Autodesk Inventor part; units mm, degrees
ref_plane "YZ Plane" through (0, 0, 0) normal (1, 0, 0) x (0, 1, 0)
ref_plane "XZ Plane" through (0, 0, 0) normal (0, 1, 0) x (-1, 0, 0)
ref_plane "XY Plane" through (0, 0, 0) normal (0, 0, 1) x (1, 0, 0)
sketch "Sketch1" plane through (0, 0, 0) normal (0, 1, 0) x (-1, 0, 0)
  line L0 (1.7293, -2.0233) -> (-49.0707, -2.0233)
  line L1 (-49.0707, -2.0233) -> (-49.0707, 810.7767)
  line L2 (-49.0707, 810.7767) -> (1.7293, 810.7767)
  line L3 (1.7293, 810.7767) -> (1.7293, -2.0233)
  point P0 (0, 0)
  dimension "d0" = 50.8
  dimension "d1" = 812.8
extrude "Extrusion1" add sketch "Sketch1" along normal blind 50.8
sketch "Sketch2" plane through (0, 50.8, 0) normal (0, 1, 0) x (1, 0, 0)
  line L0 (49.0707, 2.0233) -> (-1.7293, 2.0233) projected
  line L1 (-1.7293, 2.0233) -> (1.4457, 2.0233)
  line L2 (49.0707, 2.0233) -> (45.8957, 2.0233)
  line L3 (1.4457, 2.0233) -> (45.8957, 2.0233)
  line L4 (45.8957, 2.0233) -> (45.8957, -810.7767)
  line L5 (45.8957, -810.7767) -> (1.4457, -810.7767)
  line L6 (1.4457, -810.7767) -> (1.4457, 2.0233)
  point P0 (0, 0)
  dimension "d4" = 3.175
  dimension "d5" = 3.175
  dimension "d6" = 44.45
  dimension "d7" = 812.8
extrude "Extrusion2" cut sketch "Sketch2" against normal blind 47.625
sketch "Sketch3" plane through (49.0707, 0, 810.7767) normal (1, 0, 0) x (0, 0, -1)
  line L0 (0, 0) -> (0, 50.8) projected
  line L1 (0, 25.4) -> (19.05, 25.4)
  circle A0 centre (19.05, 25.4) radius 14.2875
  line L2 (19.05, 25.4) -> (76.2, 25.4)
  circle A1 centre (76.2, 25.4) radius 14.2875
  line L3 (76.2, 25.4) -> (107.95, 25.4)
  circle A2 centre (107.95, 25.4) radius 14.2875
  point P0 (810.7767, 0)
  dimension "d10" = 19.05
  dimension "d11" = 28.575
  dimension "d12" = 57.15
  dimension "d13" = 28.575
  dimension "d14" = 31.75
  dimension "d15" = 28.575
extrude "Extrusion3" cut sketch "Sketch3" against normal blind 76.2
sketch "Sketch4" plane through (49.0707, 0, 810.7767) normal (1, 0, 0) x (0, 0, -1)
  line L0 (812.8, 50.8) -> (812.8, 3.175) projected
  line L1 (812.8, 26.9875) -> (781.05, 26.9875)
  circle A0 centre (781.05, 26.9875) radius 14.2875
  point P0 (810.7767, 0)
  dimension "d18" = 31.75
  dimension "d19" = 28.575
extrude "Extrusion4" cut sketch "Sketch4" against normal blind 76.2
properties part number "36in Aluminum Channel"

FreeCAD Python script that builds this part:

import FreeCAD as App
import Part
import Sketcher
Q = App.Units.Quantity


def add_polygon(sketch, points):
    """Adds a closed chain of lines whose ends are joined by coincident constraints."""
    first, n = sketch.GeometryCount, len(points)
    for a, b in zip(points, points[1:] + points[:1]):
        sketch.addGeometry(Part.LineSegment(App.Vector(*a, 0), App.Vector(*b, 0)), False)
    for i in range(n):
        sketch.addConstraint(Sketcher.Constraint("Coincident", first + i, 2, first + (i + 1) % n, 1))

doc = App.newDocument("Part")
params = doc.addObject("Spreadsheet::Sheet", "Params")
for row, (alias, value) in enumerate([
    ("sketch1_width", "2 in"),
    ("sketch1_height", "32 in"),
    ("pad1_length", "2 in"),
    ("sketch2_height", "32 in"),
    ("sketch2_width", "1.75 in"),
    ("pocket1_length", "1.875 in"),
    ("sketch3_diameter", "1.125 in"),
    ("pocket2_length", "3 in"),
    ("sketch4_diameter", "1.125 in"),
    ("pocket3_length", "3 in"),
], start=1):
    params.set(f"A{row}", alias)
    params.set(f"B{row}", "=" + value)
    params.setAlias(f"B{row}", alias)

body = doc.addObject("PartDesign::Body", "Body")

# Sketch on XZ plane
sketch1 = body.newObject("Sketcher::SketchObject", "Sketch")
sketch1.AttachmentSupport = (doc.getObject("XZ_Plane"), [""])
sketch1.MapMode = "FlatFace"
add_polygon(sketch1, [(49, -2), (-2, -2), (-2, 811), (49, 811)])  # lines 0-3
sketch1.addConstraint([
    Sketcher.Constraint("Horizontal", 0),
    Sketcher.Constraint("Vertical", 1),
    Sketcher.Constraint("Horizontal", 2),
    Sketcher.Constraint("Vertical", 3),
    Sketcher.Constraint("DistanceX", 0, 2, 0, 1, Q("2 in")),
    Sketcher.Constraint("DistanceY", 1, 1, 1, 2, Q("32 in")),
    Sketcher.Constraint("DistanceX", 0, 2, -1, 1, 1.7293),
    Sketcher.Constraint("DistanceY", 0, 2, -1, 1, 2.0233),
])
sketch1.setExpression("Constraints[8]", "Params.sketch1_width")
sketch1.setExpression("Constraints[9]", "Params.sketch1_height")
pad1 = body.newObject("PartDesign::Pad", "Pad")
pad1.Profile = sketch1
pad1.setExpression("Length", "Params.pad1_length")
pad1.Reversed = True

# Sketch on XZ plane
sketch2 = body.newObject("Sketcher::SketchObject", "Sketch001")
sketch2.AttachmentSupport = (doc.getObject("XZ_Plane"), [""])
sketch2.MapMode = "FlatFace"
sketch2.AttachmentOffset = App.Placement(App.Vector(0, 0, -2 * 25.4), App.Rotation())
add_polygon(sketch2, [(46, 811), (46, -2), (1, -2), (1, 811)])  # lines 0-3
sketch2.addConstraint([
    Sketcher.Constraint("Vertical", 0),
    Sketcher.Constraint("Horizontal", 1),
    Sketcher.Constraint("Vertical", 2),
    Sketcher.Constraint("Horizontal", 3),
    Sketcher.Constraint("DistanceY", 0, 2, 0, 1, Q("32 in")),
    Sketcher.Constraint("DistanceX", 1, 2, 1, 1, Q("1.75 in")),
    Sketcher.Constraint("DistanceX", -1, 1, 0, 2, 45.8957),
    Sketcher.Constraint("DistanceY", 0, 2, -1, 1, 2.0233),
])
sketch2.setExpression("Constraints[8]", "Params.sketch2_height")
sketch2.setExpression("Constraints[9]", "Params.sketch2_width")
pocket1 = body.newObject("PartDesign::Pocket", "Pocket")
pocket1.Profile = sketch2
pocket1.setExpression("Length", "Params.pocket1_length")
pocket1.Reversed = True

# Sketch on YZ plane
sketch3 = body.newObject("Sketcher::SketchObject", "Sketch002")
sketch3.AttachmentSupport = (doc.getObject("YZ_Plane"), [""])
sketch3.MapMode = "FlatFace"
sketch3.AttachmentOffset = App.Placement(App.Vector(0, 0, 49.0707), App.Rotation())
sketch3.addGeometry([
    Part.Circle(App.Vector(25, 792, 0), App.Vector(0, 0, 1), 14),
    Part.Circle(App.Vector(25, 703, 0), App.Vector(0, 0, 1), 14),
    Part.Circle(App.Vector(25, 735, 0), App.Vector(0, 0, 1), 14),
], False)
sketch3.addConstraint([
    Sketcher.Constraint("Equal", 0, 1),
    Sketcher.Constraint("Equal", 1, 2),
    Sketcher.Constraint("Vertical", 0, 3, 1, 3),
    Sketcher.Constraint("Vertical", 1, 3, 2, 3),
    Sketcher.Constraint("Diameter", 0, Q("1.125 in")),
    Sketcher.Constraint("DistanceY", 1, 3, 2, 3, Q("1.25 in")),
    Sketcher.Constraint("DistanceY", 2, 3, 0, 3, Q("2.25 in")),
    Sketcher.Constraint("DistanceX", -1, 1, 0, 3, Q("1 in")),
    Sketcher.Constraint("DistanceY", -1, 1, 0, 3, 791.7267),
])
sketch3.setExpression("Constraints[4]", "Params.sketch3_diameter")
pocket2 = body.newObject("PartDesign::Pocket", "Pocket001")
pocket2.Profile = sketch3
pocket2.setExpression("Length", "Params.pocket2_length")

# Sketch on YZ plane
sketch4 = body.newObject("Sketcher::SketchObject", "Sketch003")
sketch4.AttachmentSupport = (doc.getObject("YZ_Plane"), [""])
sketch4.MapMode = "FlatFace"
sketch4.AttachmentOffset = App.Placement(App.Vector(0, 0, 49.0707), App.Rotation())
sketch4.addGeometry(Part.Circle(App.Vector(27, 30, 0), App.Vector(0, 0, 1), 14), False)
sketch4.addConstraint([
    Sketcher.Constraint("Diameter", 0, Q("1.125 in")),
    Sketcher.Constraint("DistanceX", -1, 1, 0, 3, Q("1.0625 in")),
    Sketcher.Constraint("DistanceY", -1, 1, 0, 3, 29.7267),
])
sketch4.setExpression("Constraints[0]", "Params.sketch4_diameter")
pocket3 = body.newObject("PartDesign::Pocket", "Pocket002")
pocket3.Profile = sketch4
pocket3.setExpression("Length", "Params.pocket3_length")

doc.recompute()
